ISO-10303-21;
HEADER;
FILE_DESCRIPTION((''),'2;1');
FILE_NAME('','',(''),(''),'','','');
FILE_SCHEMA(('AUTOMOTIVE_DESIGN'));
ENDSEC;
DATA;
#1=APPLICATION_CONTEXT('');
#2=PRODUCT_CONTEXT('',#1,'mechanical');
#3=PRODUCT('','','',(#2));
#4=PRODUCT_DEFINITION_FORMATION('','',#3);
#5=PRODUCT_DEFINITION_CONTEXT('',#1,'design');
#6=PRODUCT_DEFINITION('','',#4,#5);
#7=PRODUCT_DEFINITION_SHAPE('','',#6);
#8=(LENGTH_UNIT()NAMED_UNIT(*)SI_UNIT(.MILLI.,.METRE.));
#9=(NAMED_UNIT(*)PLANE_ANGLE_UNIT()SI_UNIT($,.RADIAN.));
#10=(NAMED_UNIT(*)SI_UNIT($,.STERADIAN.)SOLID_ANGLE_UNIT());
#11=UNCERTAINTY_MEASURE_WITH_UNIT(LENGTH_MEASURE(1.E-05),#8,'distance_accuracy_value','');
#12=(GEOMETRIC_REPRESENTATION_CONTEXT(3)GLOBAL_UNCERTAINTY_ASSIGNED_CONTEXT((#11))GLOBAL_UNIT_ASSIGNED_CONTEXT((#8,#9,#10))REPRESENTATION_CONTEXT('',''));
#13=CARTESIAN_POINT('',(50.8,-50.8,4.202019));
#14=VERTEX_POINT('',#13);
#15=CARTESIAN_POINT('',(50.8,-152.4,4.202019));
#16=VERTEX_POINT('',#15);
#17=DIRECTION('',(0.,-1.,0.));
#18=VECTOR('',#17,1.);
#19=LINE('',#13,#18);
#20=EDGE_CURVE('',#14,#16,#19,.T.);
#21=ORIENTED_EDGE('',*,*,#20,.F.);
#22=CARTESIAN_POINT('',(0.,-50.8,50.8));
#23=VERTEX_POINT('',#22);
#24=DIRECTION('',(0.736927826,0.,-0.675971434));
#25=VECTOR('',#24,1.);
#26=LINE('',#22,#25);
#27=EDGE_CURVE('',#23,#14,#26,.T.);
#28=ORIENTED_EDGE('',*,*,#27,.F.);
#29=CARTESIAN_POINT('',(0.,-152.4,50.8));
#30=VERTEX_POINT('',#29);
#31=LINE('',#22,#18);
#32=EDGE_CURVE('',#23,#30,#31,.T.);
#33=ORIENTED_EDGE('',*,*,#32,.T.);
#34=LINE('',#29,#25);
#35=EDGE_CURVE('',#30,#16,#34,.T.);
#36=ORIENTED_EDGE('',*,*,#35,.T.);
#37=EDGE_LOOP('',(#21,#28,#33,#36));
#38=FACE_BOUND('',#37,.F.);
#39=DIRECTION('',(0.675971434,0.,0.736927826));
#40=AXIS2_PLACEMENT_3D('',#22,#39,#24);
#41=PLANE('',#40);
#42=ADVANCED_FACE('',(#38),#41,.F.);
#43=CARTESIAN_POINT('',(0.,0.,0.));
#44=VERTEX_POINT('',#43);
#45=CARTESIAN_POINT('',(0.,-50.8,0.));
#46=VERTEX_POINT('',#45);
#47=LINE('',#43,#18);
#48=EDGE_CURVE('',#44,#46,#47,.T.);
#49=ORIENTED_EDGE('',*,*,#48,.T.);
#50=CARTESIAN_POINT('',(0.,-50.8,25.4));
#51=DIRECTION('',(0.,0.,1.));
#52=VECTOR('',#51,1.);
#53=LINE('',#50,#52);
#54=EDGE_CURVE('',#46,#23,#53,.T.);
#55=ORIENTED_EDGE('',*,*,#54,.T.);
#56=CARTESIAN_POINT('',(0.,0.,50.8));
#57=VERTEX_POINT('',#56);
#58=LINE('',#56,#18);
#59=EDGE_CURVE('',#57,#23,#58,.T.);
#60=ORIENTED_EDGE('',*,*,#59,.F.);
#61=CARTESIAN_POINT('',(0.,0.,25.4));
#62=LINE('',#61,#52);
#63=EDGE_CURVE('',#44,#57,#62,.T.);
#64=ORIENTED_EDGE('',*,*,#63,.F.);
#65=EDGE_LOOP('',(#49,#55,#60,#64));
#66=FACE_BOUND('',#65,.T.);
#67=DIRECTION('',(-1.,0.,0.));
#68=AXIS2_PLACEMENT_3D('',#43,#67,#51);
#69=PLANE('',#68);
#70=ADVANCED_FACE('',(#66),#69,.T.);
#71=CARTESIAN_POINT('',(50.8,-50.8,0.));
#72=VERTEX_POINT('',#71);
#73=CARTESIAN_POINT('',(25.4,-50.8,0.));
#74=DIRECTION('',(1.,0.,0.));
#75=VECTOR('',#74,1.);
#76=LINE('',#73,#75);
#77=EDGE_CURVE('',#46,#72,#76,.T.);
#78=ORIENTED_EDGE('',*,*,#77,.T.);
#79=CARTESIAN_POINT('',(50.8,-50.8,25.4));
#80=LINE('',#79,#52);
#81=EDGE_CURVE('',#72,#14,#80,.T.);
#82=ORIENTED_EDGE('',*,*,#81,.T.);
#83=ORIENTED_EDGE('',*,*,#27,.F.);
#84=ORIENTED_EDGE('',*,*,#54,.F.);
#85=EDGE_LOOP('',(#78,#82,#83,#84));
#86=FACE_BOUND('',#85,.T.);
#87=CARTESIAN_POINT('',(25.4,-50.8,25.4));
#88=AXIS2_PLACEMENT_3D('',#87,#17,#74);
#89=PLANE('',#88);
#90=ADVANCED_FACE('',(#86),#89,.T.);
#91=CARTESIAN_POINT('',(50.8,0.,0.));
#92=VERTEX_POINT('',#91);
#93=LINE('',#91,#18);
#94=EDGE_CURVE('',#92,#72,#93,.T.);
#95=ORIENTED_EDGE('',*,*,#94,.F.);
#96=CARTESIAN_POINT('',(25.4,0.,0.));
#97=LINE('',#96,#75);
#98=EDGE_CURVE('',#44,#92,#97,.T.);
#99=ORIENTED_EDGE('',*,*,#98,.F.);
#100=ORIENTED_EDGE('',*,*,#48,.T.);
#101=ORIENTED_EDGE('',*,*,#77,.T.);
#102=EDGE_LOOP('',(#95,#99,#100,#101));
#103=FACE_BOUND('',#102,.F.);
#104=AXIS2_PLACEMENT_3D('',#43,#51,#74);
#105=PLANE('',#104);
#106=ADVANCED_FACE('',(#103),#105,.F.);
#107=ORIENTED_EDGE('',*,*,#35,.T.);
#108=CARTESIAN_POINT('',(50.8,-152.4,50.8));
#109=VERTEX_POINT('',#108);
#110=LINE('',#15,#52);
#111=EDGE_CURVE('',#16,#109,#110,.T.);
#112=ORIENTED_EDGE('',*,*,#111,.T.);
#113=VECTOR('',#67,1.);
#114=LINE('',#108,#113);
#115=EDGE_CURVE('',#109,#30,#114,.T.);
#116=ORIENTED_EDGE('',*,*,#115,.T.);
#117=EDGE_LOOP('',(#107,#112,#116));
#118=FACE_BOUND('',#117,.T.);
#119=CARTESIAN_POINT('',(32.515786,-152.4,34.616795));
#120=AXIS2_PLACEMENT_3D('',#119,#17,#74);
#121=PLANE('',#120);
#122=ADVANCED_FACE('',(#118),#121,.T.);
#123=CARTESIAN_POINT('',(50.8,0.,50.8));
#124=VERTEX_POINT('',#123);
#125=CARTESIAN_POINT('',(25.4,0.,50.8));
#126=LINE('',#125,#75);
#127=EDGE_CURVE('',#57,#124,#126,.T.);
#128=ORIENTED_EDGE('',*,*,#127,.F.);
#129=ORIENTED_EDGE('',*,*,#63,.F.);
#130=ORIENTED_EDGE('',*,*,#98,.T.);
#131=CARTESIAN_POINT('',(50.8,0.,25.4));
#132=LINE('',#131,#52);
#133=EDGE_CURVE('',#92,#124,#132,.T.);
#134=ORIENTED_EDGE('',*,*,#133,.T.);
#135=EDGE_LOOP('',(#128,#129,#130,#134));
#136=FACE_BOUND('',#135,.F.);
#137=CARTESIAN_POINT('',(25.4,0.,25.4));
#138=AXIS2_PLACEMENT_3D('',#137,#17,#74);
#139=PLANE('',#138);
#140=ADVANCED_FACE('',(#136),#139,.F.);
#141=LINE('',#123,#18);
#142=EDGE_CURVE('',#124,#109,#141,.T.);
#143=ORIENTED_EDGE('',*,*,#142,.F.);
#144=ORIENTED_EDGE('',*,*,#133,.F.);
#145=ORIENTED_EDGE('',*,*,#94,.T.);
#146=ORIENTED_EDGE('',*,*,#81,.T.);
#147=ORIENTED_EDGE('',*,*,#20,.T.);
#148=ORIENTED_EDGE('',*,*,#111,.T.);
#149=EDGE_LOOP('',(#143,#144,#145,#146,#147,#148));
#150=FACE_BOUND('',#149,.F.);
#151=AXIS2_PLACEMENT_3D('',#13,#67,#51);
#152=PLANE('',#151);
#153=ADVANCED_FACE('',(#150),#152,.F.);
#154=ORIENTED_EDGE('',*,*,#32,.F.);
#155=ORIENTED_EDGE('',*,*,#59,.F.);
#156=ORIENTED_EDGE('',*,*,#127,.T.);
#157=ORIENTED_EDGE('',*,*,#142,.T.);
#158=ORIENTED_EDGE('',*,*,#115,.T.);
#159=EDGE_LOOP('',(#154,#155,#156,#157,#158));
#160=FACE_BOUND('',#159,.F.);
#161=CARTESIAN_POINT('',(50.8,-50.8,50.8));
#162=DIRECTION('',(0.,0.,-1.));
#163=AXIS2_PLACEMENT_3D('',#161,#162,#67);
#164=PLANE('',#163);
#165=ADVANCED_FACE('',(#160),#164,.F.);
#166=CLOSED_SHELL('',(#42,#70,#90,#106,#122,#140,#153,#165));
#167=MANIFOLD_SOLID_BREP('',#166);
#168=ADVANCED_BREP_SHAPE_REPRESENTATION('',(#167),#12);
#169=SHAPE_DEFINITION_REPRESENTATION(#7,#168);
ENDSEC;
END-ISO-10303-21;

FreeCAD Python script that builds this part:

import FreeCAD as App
import Part
import Sketcher

V = App.Vector
Q = App.Units.Quantity

doc = App.newDocument("Part")
params = doc.addObject("Spreadsheet::Sheet", "Params")
for row, (alias, value) in enumerate([
    ("sketch1_width", "2 in"),
    ("pad1_length", "2 in"),
    ("sketch2_width", "2 in"),
    ("pad2_length", "4 in"),
], start=1):
    params.set(f"A{row}", alias)
    params.set(f"B{row}", "=" + value)
    params.setAlias(f"B{row}", alias)

body = doc.addObject("PartDesign::Body", "Body")

sketch1 = body.newObject("Sketcher::SketchObject", "Sketch")
sketch1.AttachmentSupport = (doc.getObject("XZ_Plane"), [""])
sketch1.MapMode = "FlatFace"
sketch1.addGeometry([
    Part.LineSegment(V(0, 51, 0), V(0, 0, 0)),
    Part.LineSegment(V(0, 0, 0), V(51, 0, 0)),
    Part.LineSegment(V(51, 0, 0), V(51, 51, 0)),
    Part.LineSegment(V(51, 51, 0), V(0, 51, 0)),
], False)
sketch1.addConstraint([
    Sketcher.Constraint("Coincident", 0, 2, 1, 1),
    Sketcher.Constraint("Coincident", 1, 2, 2, 1),
    Sketcher.Constraint("Coincident", 2, 2, 3, 1),
    Sketcher.Constraint("Coincident", 3, 2, 0, 1),
    Sketcher.Constraint("Vertical", 0),
    Sketcher.Constraint("Horizontal", 1),
    Sketcher.Constraint("Vertical", 2),
    Sketcher.Constraint("Horizontal", 3),
    Sketcher.Constraint("Coincident", 0, 2, -1, 1),
    Sketcher.Constraint("Equal", 3, 0),
    Sketcher.Constraint("DistanceX", 1, 1, 1, 2, Q("2 in")),
])
sketch1.setExpression("Constraints[10]", "Params.sketch1_width")
pad1 = body.newObject("PartDesign::Pad", "Pad")
pad1.Profile = sketch1
pad1.setExpression("Length", "Params.pad1_length")

sketch2 = body.newObject("Sketcher::SketchObject", "Sketch001")
sketch2.AttachmentSupport = (doc.getObject("XZ_Plane"), [""])
sketch2.MapMode = "FlatFace"
sketch2.AttachmentOffset = App.Placement(V(0, 0, 2 * 25.4), App.Rotation())
sketch2.addGeometry([
    Part.LineSegment(V(51, 4, 0), V(51, 51, 0)),
    Part.LineSegment(V(51, 51, 0), V(0, 51, 0)),
    Part.LineSegment(V(0, 51, 0), V(51, 4, 0)),
], False)
sketch2.addConstraint([
    Sketcher.Constraint("Coincident", 0, 2, 1, 1),
    Sketcher.Constraint("Coincident", 1, 2, 2, 1),
    Sketcher.Constraint("Coincident", 2, 2, 0, 1),
    Sketcher.Constraint("Vertical", 0),
    Sketcher.Constraint("Horizontal", 1),
    Sketcher.Constraint("PointOnObject", 1, 2, -2),
    Sketcher.Constraint("DistanceX", 1, 2, 1, 1, Q("2 in")),
    Sketcher.Constraint("DistanceY", -1, 1, 0, 2, Q("2 in")),
    Sketcher.Constraint("DistanceY", 0, 1, 0, 2, Q("46.597981 mm")),
])
sketch2.setExpression("Constraints[6]", "Params.sketch2_width")
pad2 = body.newObject("PartDesign::Pad", "Pad001")
pad2.Profile = sketch2
pad2.setExpression("Length", "Params.pad2_length")

doc.recompute()
